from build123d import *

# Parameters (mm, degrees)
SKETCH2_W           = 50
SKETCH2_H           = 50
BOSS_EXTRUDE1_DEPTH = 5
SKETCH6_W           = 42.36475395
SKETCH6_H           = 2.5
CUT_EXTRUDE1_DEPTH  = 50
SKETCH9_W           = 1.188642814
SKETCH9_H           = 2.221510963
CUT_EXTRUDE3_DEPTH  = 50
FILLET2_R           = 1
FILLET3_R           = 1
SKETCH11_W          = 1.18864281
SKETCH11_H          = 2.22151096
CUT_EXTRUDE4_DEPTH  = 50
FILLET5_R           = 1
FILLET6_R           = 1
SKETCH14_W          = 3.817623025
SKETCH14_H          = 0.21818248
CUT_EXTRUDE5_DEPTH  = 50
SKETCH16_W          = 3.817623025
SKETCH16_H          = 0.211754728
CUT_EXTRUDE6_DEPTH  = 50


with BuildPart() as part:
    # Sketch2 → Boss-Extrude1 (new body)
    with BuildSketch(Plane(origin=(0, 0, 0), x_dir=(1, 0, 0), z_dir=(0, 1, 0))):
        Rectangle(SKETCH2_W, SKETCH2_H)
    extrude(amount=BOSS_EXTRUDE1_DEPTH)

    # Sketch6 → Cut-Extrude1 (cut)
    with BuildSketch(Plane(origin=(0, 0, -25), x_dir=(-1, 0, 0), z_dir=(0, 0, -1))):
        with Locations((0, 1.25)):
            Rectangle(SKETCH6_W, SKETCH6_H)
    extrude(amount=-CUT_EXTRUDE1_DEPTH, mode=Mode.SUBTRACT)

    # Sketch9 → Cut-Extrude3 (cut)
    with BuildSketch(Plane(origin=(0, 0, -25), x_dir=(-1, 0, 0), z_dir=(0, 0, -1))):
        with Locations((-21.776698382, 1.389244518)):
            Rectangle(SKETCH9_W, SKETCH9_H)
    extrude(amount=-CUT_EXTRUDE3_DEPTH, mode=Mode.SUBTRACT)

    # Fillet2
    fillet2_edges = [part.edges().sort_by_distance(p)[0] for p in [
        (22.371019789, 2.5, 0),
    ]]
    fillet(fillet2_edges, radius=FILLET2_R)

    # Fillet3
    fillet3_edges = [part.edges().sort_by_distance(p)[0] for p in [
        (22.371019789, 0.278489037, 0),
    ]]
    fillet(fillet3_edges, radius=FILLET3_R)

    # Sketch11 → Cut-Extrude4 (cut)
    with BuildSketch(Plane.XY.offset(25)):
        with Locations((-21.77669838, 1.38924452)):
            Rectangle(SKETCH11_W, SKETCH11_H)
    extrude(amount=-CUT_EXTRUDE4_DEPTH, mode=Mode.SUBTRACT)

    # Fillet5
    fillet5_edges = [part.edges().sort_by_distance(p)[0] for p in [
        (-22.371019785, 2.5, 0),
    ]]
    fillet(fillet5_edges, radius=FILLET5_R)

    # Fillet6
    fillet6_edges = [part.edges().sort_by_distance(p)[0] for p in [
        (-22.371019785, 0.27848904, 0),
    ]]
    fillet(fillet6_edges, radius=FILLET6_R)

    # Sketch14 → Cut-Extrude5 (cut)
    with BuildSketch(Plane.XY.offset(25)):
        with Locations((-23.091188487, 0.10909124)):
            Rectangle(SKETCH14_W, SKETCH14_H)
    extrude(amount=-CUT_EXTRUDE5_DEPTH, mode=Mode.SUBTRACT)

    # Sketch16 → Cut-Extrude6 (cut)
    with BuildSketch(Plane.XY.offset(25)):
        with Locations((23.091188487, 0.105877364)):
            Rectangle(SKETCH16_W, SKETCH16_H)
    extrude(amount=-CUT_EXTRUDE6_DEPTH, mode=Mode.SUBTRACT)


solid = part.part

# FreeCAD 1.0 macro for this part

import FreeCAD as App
import Part
import Sketcher
from FreeCAD import Vector


def edges_at(feature, points):
    """Names of the edges that pass closest to the given points."""
    edges = feature.Shape.Edges
    near = lambda p: min(range(len(edges)), key=lambda i: edges[i].distToShape(Part.Vertex(*p))[0])
    return sorted({f"Edge{near(p) + 1}" for p in points})


def add_polygon(sketch, points):
    """Adds a closed chain of lines whose ends are joined by coincident constraints."""
    first, n = sketch.GeometryCount, len(points)
    for a, b in zip(points, points[1:] + points[:1]):
        sketch.addGeometry(Part.LineSegment(App.Vector(*a, 0), App.Vector(*b, 0)), False)
    for i in range(n):
        sketch.addConstraint(Sketcher.Constraint("Coincident", first + i, 2, first + (i + 1) % n, 1))

doc = App.newDocument("Part")
body = doc.addObject("PartDesign::Body", "Body")

sketch1 = body.newObject("Sketcher::SketchObject", "Sketch")
sketch1.AttachmentSupport = (doc.getObject("XZ_Plane"), [""])
sketch1.MapMode = "FlatFace"
add_polygon(sketch1, [(-25, -25), (-25, 25), (25, 25), (25, -25)])
sketch1.addConstraint(Sketcher.Constraint("Vertical", 0))
sketch1.addConstraint(Sketcher.Constraint("Horizontal", 1))
sketch1.addConstraint(Sketcher.Constraint("Vertical", 2))
sketch1.addConstraint(Sketcher.Constraint("Horizontal", 3))
sketch1.addConstraint(Sketcher.Constraint("Symmetric", 0, 2, 2, 2, -1, 1))
sketch1.addConstraint(Sketcher.Constraint("Equal", 3, 0))
sketch1.addConstraint(Sketcher.Constraint("DistanceX", 1, 1, 1, 2, 50.0))
pad1 = body.newObject("PartDesign::Pad", "Pad")
pad1.Profile = sketch1
pad1.Length = 5
pad1.Reversed = True

sketch2 = body.newObject("Sketcher::SketchObject", "Sketch001")
sketch2.AttachmentSupport = (doc.getObject("XY_Plane"), [""])
sketch2.MapMode = "FlatFace"
sketch2.AttachmentOffset = App.Placement(Vector(0, 0, -25), App.Rotation())
add_polygon(sketch2, [(21.2, 2.5), (21.2, 0), (-21.2, 0), (-21.2, 2.5)])
sketch2.addConstraint(Sketcher.Constraint("Vertical", 0))
sketch2.addConstraint(Sketcher.Constraint("Horizontal", 1))
sketch2.addConstraint(Sketcher.Constraint("Vertical", 2))
sketch2.addConstraint(Sketcher.Constraint("Horizontal", 3))
sketch2.addConstraint(Sketcher.Constraint("Symmetric", 0, 2, 1, 2, -1, 1))
sketch2.addConstraint(Sketcher.Constraint("DistanceY", 0, 2, 0, 1, 2.5))
sketch2.addConstraint(Sketcher.Constraint("DistanceX", 1, 2, 1, 1, 42.364754))
pocket1 = body.newObject("PartDesign::Pocket", "Pocket")
pocket1.Profile = sketch2
pocket1.Length = 50
pocket1.Reversed = True

sketch3 = body.newObject("Sketcher::SketchObject", "Sketch002")
sketch3.AttachmentSupport = (doc.getObject("XY_Plane"), [""])
sketch3.MapMode = "FlatFace"
sketch3.AttachmentOffset = App.Placement(Vector(0, 0, -25), App.Rotation())
add_polygon(sketch3, [(22.4, 2.5), (22.4, 0.3), (21.2, 0.3), (21.2, 2.5)])
sketch3.addConstraint(Sketcher.Constraint("Vertical", 0))
sketch3.addConstraint(Sketcher.Constraint("Horizontal", 1))
sketch3.addConstraint(Sketcher.Constraint("Vertical", 2))
sketch3.addConstraint(Sketcher.Constraint("Horizontal", 3))
sketch3.addConstraint(Sketcher.Constraint("DistanceY", -1, 1, 2, 2, 2.5))
sketch3.addConstraint(Sketcher.Constraint("DistanceY", 0, 2, 0, 1, 2.221511))
sketch3.addConstraint(Sketcher.Constraint("DistanceX", 1, 2, 1, 1, 1.188643))
sketch3.addConstraint(Sketcher.Constraint("DistanceX", -1, 1, 0, 2, 22.37102))
pocket2 = body.newObject("PartDesign::Pocket", "Pocket001")
pocket2.Profile = sketch3
pocket2.Length = 50
pocket2.Reversed = True
doc.recompute()

fillet = body.newObject("PartDesign::Fillet", "Fillet")
fillet.Base = (pocket2, edges_at(pocket2, [(22.371, 2.5, 0)]))
fillet.Radius = 1
doc.recompute()

fillet2 = body.newObject("PartDesign::Fillet", "Fillet001")
fillet2.Base = (fillet, edges_at(fillet, [(22.371, 0.278, 0)]))
fillet2.Radius = 1

sketch4 = body.newObject("Sketcher::SketchObject", "Sketch003")
sketch4.AttachmentSupport = (doc.getObject("XY_Plane"), [""])
sketch4.MapMode = "FlatFace"
sketch4.AttachmentOffset = App.Placement(Vector(0, 0, 25), App.Rotation())
add_polygon(sketch4, [(-22.4, 2.5), (-22.4, 0.3), (-21.2, 0.3), (-21.2, 2.5)])
sketch4.addConstraint(Sketcher.Constraint("Vertical", 0))
sketch4.addConstraint(Sketcher.Constraint("Horizontal", 1))
sketch4.addConstraint(Sketcher.Constraint("Vertical", 2))
sketch4.addConstraint(Sketcher.Constraint("Horizontal", 3))
sketch4.addConstraint(Sketcher.Constraint("DistanceY", -1, 1, 2, 2, 2.5))
sketch4.addConstraint(Sketcher.Constraint("DistanceY", 0, 2, 0, 1, 2.221511))
sketch4.addConstraint(Sketcher.Constraint("DistanceX", 1, 1, 1, 2, 1.188643))
sketch4.addConstraint(Sketcher.Constraint("DistanceX", 0, 2, -1, 1, 22.37102))
pocket3 = body.newObject("PartDesign::Pocket", "Pocket002")
pocket3.Profile = sketch4
pocket3.Length = 50
doc.recompute()

fillet3 = body.newObject("PartDesign::Fillet", "Fillet002")
fillet3.Base = (pocket3, edges_at(pocket3, [(-22.371, 2.5, 0)]))
fillet3.Radius = 1
doc.recompute()

fillet4 = body.newObject("PartDesign::Fillet", "Fillet003")
fillet4.Base = (fillet3, edges_at(fillet3, [(-22.371, 0.278, 0)]))
fillet4.Radius = 1

sketch5 = body.newObject("Sketcher::SketchObject", "Sketch004")
sketch5.AttachmentSupport = (doc.getObject("XY_Plane"), [""])
sketch5.MapMode = "FlatFace"
sketch5.AttachmentOffset = App.Placement(Vector(0, 0, 25), App.Rotation())
add_polygon(sketch5, [(-25, 0.22), (-25, 0), (-21.18, 0), (-21.18, 0.22)])
sketch5.addConstraint(Sketcher.Constraint("Vertical", 0))
sketch5.addConstraint(Sketcher.Constraint("Horizontal", 1))
sketch5.addConstraint(Sketcher.Constraint("Vertical", 2))
sketch5.addConstraint(Sketcher.Constraint("Horizontal", 3))
sketch5.addConstraint(Sketcher.Constraint("PointOnObject", 0, 2, -1))
sketch5.addConstraint(Sketcher.Constraint("DistanceX", 0, 2, -1, 1, 25.0))
sketch5.addConstraint(Sketcher.Constraint("DistanceX", 1, 1, 1, 2, 3.817623))
sketch5.addConstraint(Sketcher.Constraint("DistanceY", 0, 2, 0, 1, 0.218182))
pocket4 = body.newObject("PartDesign::Pocket", "Pocket003")
pocket4.Profile = sketch5
pocket4.Length = 50

sketch6 = body.newObject("Sketcher::SketchObject", "Sketch005")
sketch6.AttachmentSupport = (doc.getObject("XY_Plane"), [""])
sketch6.MapMode = "FlatFace"
sketch6.AttachmentOffset = App.Placement(Vector(0, 0, 25), App.Rotation())
add_polygon(sketch6, [(21.18, 0.21), (21.18, 0), (25, 0), (25, 0.21)])
sketch6.addConstraint(Sketcher.Constraint("Vertical", 0))
sketch6.addConstraint(Sketcher.Constraint("Horizontal", 1))
sketch6.addConstraint(Sketcher.Constraint("Vertical", 2))
sketch6.addConstraint(Sketcher.Constraint("Horizontal", 3))
sketch6.addConstraint(Sketcher.Constraint("PointOnObject", 0, 2, -1))
sketch6.addConstraint(Sketcher.Constraint("DistanceX", -1, 1, 1, 2, 25.0))
sketch6.addConstraint(Sketcher.Constraint("DistanceX", 1, 1, 1, 2, 3.817623))
sketch6.addConstraint(Sketcher.Constraint("DistanceY", 0, 2, 0, 1, 0.211755))
pocket5 = body.newObject("PartDesign::Pocket", "Pocket004")
pocket5.Profile = sketch6
pocket5.Length = 50

doc.recompute()
